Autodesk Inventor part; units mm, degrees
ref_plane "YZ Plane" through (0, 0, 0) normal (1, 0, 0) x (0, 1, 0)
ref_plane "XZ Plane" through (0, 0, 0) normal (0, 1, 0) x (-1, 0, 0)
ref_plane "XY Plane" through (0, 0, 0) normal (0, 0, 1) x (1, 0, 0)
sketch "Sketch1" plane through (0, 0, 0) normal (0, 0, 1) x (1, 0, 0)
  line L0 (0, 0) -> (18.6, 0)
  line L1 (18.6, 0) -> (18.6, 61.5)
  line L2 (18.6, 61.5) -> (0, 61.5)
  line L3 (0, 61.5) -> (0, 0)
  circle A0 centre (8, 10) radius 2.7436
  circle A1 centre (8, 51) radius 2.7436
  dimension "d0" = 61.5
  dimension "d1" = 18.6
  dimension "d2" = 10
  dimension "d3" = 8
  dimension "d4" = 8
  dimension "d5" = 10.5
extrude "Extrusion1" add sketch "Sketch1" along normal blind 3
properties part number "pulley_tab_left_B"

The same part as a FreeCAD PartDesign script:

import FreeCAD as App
import Part
import Sketcher
from FreeCAD import Vector
Q = App.Units.Quantity


def add_polygon(sketch, points):
    """Adds a closed chain of lines whose ends are joined by coincident constraints."""
    first, n = sketch.GeometryCount, len(points)
    for a, b in zip(points, points[1:] + points[:1]):
        sketch.addGeometry(Part.LineSegment(App.Vector(*a, 0), App.Vector(*b, 0)), False)
    for i in range(n):
        sketch.addConstraint(Sketcher.Constraint("Coincident", first + i, 2, first + (i + 1) % n, 1))

doc = App.newDocument("Part")
body = doc.addObject("PartDesign::Body", "Body")

sketch1 = body.newObject("Sketcher::SketchObject", "Sketch")
sketch1.AttachmentSupport = (doc.getObject("XY_Plane"), [""])
sketch1.MapMode = "FlatFace"
add_polygon(sketch1, [(0, 61.5), (0, 0), (18.6, 0), (18.6, 61.5)])
sketch1.addGeometry(Part.Circle(Vector(8, 10, 0), Vector(0, 0, 1), 2.7), False)
sketch1.addGeometry(Part.Circle(Vector(8, 51, 0), Vector(0, 0, 1), 2.7), False)
sketch1.addConstraint([
    Sketcher.Constraint("Vertical", 0),
    Sketcher.Constraint("Horizontal", 1),
    Sketcher.Constraint("Vertical", 2),
    Sketcher.Constraint("Horizontal", 3),
    Sketcher.Constraint("Coincident", 0, 2, -1, 1),
    Sketcher.Constraint("Equal", 4, 5),
    Sketcher.Constraint("Vertical", 4, 3, 5, 3),
    Sketcher.Constraint("DistanceX", 1, 1, 1, 2, Q("18.6 mm")),
    Sketcher.Constraint("DistanceY", 0, 2, 0, 1, Q("61.5 mm")),
    Sketcher.Constraint("DistanceX", -1, 1, 4, 3, Q("8 mm")),
    Sketcher.Constraint("DistanceY", -1, 1, 4, 3, Q("10 mm")),
    Sketcher.Constraint("DistanceY", 5, 3, 2, 2, Q("10.5 mm")),
    Sketcher.Constraint("Diameter", 4, Q("5.4872 mm")),
])
pad1 = body.newObject("PartDesign::Pad", "Pad")
pad1.Profile = sketch1
pad1.Length = 3

doc.recompute()
